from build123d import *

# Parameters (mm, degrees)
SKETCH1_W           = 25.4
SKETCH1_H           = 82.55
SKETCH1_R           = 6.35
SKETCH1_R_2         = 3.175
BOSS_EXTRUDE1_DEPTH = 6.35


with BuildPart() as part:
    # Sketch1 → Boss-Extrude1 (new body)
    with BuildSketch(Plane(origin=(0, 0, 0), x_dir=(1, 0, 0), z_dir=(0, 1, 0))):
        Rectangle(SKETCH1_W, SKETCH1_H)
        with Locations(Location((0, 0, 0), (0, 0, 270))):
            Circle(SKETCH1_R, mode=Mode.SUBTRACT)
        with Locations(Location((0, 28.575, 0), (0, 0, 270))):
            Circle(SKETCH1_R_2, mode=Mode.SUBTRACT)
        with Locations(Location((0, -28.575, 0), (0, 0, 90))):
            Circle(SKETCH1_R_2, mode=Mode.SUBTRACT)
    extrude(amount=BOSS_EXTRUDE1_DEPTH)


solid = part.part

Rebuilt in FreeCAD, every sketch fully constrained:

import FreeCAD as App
import Part
import Sketcher
from FreeCAD import Vector
Q = App.Units.Quantity


def add_polygon(sketch, points):
    """Adds a closed chain of lines whose ends are joined by coincident constraints."""
    first, n = sketch.GeometryCount, len(points)
    for a, b in zip(points, points[1:] + points[:1]):
        sketch.addGeometry(Part.LineSegment(App.Vector(*a, 0), App.Vector(*b, 0)), False)
    for i in range(n):
        sketch.addConstraint(Sketcher.Constraint("Coincident", first + i, 2, first + (i + 1) % n, 1))

doc = App.newDocument("Part")
params = doc.addObject("Spreadsheet::Sheet", "Params")
for row, (alias, value) in enumerate([
    ("sketch1_diameter", "0.5 in"),
    ("sketch1_diameter2", "0.25 in"),
    ("sketch1_width", "1 in"),
    ("sketch1_height", "3.25 in"),
    ("pad1_length", "0.25 in"),
], start=1):
    params.set(f"A{row}", alias)
    params.set(f"B{row}", "=" + value)
    params.setAlias(f"B{row}", alias)

body = doc.addObject("PartDesign::Body", "Body")

sketch1 = body.newObject("Sketcher::SketchObject", "Sketch")
sketch1.AttachmentSupport = (doc.getObject("XZ_Plane"), [""])
sketch1.MapMode = "FlatFace"
add_polygon(sketch1, [(-12.7, -41.3), (-12.7, 41.3), (12.7, 41.3), (12.7, -41.3)])
sketch1.addGeometry(Part.Circle(Vector(0, 28.6, 0), Vector(0, 0, 1), 3.2), False)
sketch1.addGeometry(Part.Circle(Vector(0, 0, 0), Vector(0, 0, 1), 6.3), False)
sketch1.addGeometry(Part.Circle(Vector(0, -28.6, 0), Vector(0, 0, 1), 3.2), False)
sketch1.addConstraint([
    Sketcher.Constraint("Vertical", 0),
    Sketcher.Constraint("Horizontal", 1),
    Sketcher.Constraint("Vertical", 2),
    Sketcher.Constraint("Horizontal", 3),
    Sketcher.Constraint("Coincident", 5, 3, -1, 1),
    Sketcher.Constraint("Equal", 4, 6),
    Sketcher.Constraint("Symmetric", 4, 3, 6, 3, -1, 1),
    Sketcher.Constraint("Symmetric", 0, 2, 2, 2, -1, 1),
    Sketcher.Constraint("PointOnObject", 4, 3, -2),
    Sketcher.Constraint("Diameter", 5, Q("0.5 in")),
    Sketcher.Constraint("Diameter", 4, Q("0.25 in")),
    Sketcher.Constraint("DistanceX", 1, 1, 1, 2, Q("1 in")),
    Sketcher.Constraint("DistanceY", 0, 1, 0, 2, Q("3.25 in")),
    Sketcher.Constraint("DistanceY", 4, 3, 0, 2, Q("0.5 in")),
])
sketch1.setExpression("Constraints[13]", "Params.sketch1_diameter")
sketch1.setExpression("Constraints[14]", "Params.sketch1_diameter2")
sketch1.setExpression("Constraints[15]", "Params.sketch1_width")
sketch1.setExpression("Constraints[16]", "Params.sketch1_height")
pad1 = body.newObject("PartDesign::Pad", "Pad")
pad1.Profile = sketch1
pad1.setExpression("Length", "Params.pad1_length")
pad1.Reversed = True

doc.recompute()
